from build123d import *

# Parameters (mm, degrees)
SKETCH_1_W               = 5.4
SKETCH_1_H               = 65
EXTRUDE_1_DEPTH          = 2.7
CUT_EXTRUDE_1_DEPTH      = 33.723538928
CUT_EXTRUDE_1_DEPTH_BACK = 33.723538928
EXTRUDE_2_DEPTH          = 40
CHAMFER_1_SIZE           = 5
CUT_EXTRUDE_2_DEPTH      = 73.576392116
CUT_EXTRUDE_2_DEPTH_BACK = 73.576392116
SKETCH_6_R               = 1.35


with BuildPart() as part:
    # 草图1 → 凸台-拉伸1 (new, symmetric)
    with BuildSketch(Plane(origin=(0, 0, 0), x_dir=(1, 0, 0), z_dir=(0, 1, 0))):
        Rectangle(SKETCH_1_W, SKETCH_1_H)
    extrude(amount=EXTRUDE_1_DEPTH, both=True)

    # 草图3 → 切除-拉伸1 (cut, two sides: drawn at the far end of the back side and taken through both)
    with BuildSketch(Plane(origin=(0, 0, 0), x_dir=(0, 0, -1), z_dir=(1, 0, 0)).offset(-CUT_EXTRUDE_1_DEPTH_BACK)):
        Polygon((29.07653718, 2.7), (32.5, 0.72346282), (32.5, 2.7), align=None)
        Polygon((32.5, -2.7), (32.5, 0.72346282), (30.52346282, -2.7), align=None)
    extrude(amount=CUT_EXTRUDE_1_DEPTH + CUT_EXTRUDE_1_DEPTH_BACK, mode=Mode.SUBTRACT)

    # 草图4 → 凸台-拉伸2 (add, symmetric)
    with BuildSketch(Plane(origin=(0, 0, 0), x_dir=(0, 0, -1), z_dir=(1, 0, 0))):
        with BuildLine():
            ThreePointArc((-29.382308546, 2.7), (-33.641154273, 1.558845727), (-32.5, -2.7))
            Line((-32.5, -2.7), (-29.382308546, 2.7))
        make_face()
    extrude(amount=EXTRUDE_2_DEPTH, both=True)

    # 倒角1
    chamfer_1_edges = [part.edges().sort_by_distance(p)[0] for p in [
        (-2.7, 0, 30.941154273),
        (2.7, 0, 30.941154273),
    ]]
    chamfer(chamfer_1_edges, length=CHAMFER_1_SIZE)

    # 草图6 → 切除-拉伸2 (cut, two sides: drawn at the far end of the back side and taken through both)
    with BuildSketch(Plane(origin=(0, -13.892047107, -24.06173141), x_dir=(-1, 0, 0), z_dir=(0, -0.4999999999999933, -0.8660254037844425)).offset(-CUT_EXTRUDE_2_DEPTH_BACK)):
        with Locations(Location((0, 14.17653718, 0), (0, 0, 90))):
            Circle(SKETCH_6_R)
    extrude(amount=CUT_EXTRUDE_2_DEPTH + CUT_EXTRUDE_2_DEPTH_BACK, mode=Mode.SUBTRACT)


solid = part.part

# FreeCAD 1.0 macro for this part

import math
import FreeCAD as App
import Part
import Sketcher
from FreeCAD import Vector
Q = App.Units.Quantity


def edges_at(feature, points):
    """Names of the edges that pass closest to the given points."""
    edges = feature.Shape.Edges
    near = lambda p: min(range(len(edges)), key=lambda i: edges[i].distToShape(Part.Vertex(*p))[0])
    return sorted({f"Edge{near(p) + 1}" for p in points})

doc = App.newDocument("Part")
body = doc.addObject("PartDesign::Body", "Body")

# Sketch on XZ plane
sketch1 = body.newObject("Sketcher::SketchObject", "Sketch")
sketch1.AttachmentSupport = (doc.getObject("XZ_Plane"), [""])
sketch1.MapMode = "FlatFace"
sketch1.addGeometry([
    Part.LineSegment(Vector(-3, -32, 0), Vector(-3, 32, 0)),
    Part.LineSegment(Vector(-3, 32, 0), Vector(3, 32, 0)),
    Part.LineSegment(Vector(3, 32, 0), Vector(3, -32, 0)),
    Part.LineSegment(Vector(3, -32, 0), Vector(-3, -32, 0)),
], False)
sketch1.addConstraint([
    Sketcher.Constraint("Coincident", 0, 2, 1, 1),
    Sketcher.Constraint("Coincident", 1, 2, 2, 1),
    Sketcher.Constraint("Coincident", 2, 2, 3, 1),
    Sketcher.Constraint("Coincident", 3, 2, 0, 1),
    Sketcher.Constraint("Vertical", 0),
    Sketcher.Constraint("Horizontal", 1),
    Sketcher.Constraint("Vertical", 2),
    Sketcher.Constraint("Horizontal", 3),
    Sketcher.Constraint("Symmetric", 0, 2, 2, 2, -1, 1),
    Sketcher.Constraint("DistanceY", 0, 1, 0, 2, 65.0),
    Sketcher.Constraint("DistanceX", 1, 1, 1, 2, 5.4),
])
pad1 = body.newObject("PartDesign::Pad", "Pad")
pad1.Profile = sketch1
pad1.Length = 5.4
pad1.Midplane = True

# Sketch on YZ plane
sketch2 = body.newObject("Sketcher::SketchObject", "Sketch001")
sketch2.AttachmentSupport = (doc.getObject("YZ_Plane"), [""])
sketch2.MapMode = "FlatFace"
sketch2.addGeometry([
    Part.LineSegment(Vector(2.7, -29.1, 0), Vector(0.7, -32.5, 0)),  # 0
    Part.LineSegment(Vector(0.7, -32.5, 0), Vector(2.7, -32.5, 0)),  # 1
    Part.LineSegment(Vector(2.7, -32.5, 0), Vector(2.7, -29.1, 0)),  # 2
    Part.LineSegment(Vector(-2.7, -32.5, 0), Vector(0.7, -32.5, 0)),  # 3
    Part.LineSegment(Vector(0.7, -32.5, 0), Vector(-2.7, -30.5, 0)),  # 4
    Part.LineSegment(Vector(-2.7, -30.5, 0), Vector(-2.7, -32.5, 0)),  # 5
], False)
sketch2.addConstraint([
    Sketcher.Constraint("Coincident", 0, 2, 1, 1),
    Sketcher.Constraint("Coincident", 1, 2, 2, 1),
    Sketcher.Constraint("Coincident", 2, 2, 0, 1),
    Sketcher.Constraint("Coincident", 3, 2, 4, 1),
    Sketcher.Constraint("Coincident", 4, 2, 5, 1),
    Sketcher.Constraint("Coincident", 5, 2, 3, 1),
    Sketcher.Constraint("Horizontal", 1),
    Sketcher.Constraint("Vertical", 2),
    Sketcher.Constraint("Horizontal", 3),
    Sketcher.Constraint("Vertical", 5),
    Sketcher.Constraint("Coincident", 3, 2, 0, 2),
    Sketcher.Constraint("Perpendicular", 0, 4),
    Sketcher.Constraint("Equal", 3, 2),
    Sketcher.Constraint("Angle", 0, Q("-120 deg")),
    Sketcher.Constraint("DistanceY", 0, 2, -1, 1, 32.5),
    Sketcher.Constraint("DistanceX", -1, 1, 1, 2, 2.7),
    Sketcher.Constraint("DistanceX", 4, 2, -1, 1, 2.7),
])
pocket1 = body.newObject("PartDesign::Pocket", "Pocket")
pocket1.Profile = sketch2
pocket1.Type = "ThroughAll"
pocket1.Midplane = True

# Sketch on YZ plane
sketch3 = body.newObject("Sketcher::SketchObject", "Sketch002")
sketch3.AttachmentSupport = (doc.getObject("YZ_Plane"), [""])
sketch3.MapMode = "FlatFace"
sketch3.addGeometry([
    Part.ArcOfCircle(Part.Circle(Vector(0, 30.9, 0), Vector(0, 0, 1), 3.1), math.radians(-30), math.radians(150)),
    Part.LineSegment(Vector(-2.7, 32.5, 0), Vector(2.7, 29.4, 0)),
], False)
sketch3.addConstraint([
    Sketcher.Constraint("Coincident", 0, 1, 1, 2),
    Sketcher.Constraint("Coincident", 1, 1, 0, 2),
    Sketcher.Constraint("PointOnObject", 0, 3, -2),
    Sketcher.Constraint("Angle", 1, Q("-30 deg")),
    Sketcher.Constraint("DistanceX", -1, 1, 0, 1, 2.7),
    Sketcher.Constraint("DistanceX", 1, 1, -1, 1, 2.7),
    Sketcher.Constraint("DistanceY", -1, 1, 1, 1, 32.5),
])
pad2 = body.newObject("PartDesign::Pad", "Pad001")
pad2.Profile = sketch3
pad2.Length = 80
pad2.Midplane = True
doc.recompute()

chamfer = body.newObject("PartDesign::Chamfer", "Chamfer")
chamfer.Base = (pad2, edges_at(pad2, [(-2.7, 0, 30.941), (2.7, 0, 30.941)]))
chamfer.Size = 5

# Sketch on an angled plane
sketch4 = body.newObject("Sketcher::SketchObject", "Sketch003")
sketch4.Placement = App.Placement(Vector(0, -13.892047, -24.061731), App.Rotation(Vector(-1, 0, 0), Vector(0, 0.866025404, -0.5), Vector(0, -0.5, -0.866025404), "ZXY"))
sketch4.addGeometry(Part.Circle(Vector(0, 14.2, 0), Vector(0, 0, 1), 1.4), False)
sketch4.addConstraint([
    Sketcher.Constraint("PointOnObject", 0, 3, -2),
    Sketcher.Constraint("Diameter", 0, 2.7),
    Sketcher.Constraint("DistanceY", -1, 1, 0, 3, 14.176537),
])
pocket2 = body.newObject("PartDesign::Pocket", "Pocket001")
pocket2.Profile = sketch4
pocket2.Type = "ThroughAll"
pocket2.Midplane = True

doc.recompute()
